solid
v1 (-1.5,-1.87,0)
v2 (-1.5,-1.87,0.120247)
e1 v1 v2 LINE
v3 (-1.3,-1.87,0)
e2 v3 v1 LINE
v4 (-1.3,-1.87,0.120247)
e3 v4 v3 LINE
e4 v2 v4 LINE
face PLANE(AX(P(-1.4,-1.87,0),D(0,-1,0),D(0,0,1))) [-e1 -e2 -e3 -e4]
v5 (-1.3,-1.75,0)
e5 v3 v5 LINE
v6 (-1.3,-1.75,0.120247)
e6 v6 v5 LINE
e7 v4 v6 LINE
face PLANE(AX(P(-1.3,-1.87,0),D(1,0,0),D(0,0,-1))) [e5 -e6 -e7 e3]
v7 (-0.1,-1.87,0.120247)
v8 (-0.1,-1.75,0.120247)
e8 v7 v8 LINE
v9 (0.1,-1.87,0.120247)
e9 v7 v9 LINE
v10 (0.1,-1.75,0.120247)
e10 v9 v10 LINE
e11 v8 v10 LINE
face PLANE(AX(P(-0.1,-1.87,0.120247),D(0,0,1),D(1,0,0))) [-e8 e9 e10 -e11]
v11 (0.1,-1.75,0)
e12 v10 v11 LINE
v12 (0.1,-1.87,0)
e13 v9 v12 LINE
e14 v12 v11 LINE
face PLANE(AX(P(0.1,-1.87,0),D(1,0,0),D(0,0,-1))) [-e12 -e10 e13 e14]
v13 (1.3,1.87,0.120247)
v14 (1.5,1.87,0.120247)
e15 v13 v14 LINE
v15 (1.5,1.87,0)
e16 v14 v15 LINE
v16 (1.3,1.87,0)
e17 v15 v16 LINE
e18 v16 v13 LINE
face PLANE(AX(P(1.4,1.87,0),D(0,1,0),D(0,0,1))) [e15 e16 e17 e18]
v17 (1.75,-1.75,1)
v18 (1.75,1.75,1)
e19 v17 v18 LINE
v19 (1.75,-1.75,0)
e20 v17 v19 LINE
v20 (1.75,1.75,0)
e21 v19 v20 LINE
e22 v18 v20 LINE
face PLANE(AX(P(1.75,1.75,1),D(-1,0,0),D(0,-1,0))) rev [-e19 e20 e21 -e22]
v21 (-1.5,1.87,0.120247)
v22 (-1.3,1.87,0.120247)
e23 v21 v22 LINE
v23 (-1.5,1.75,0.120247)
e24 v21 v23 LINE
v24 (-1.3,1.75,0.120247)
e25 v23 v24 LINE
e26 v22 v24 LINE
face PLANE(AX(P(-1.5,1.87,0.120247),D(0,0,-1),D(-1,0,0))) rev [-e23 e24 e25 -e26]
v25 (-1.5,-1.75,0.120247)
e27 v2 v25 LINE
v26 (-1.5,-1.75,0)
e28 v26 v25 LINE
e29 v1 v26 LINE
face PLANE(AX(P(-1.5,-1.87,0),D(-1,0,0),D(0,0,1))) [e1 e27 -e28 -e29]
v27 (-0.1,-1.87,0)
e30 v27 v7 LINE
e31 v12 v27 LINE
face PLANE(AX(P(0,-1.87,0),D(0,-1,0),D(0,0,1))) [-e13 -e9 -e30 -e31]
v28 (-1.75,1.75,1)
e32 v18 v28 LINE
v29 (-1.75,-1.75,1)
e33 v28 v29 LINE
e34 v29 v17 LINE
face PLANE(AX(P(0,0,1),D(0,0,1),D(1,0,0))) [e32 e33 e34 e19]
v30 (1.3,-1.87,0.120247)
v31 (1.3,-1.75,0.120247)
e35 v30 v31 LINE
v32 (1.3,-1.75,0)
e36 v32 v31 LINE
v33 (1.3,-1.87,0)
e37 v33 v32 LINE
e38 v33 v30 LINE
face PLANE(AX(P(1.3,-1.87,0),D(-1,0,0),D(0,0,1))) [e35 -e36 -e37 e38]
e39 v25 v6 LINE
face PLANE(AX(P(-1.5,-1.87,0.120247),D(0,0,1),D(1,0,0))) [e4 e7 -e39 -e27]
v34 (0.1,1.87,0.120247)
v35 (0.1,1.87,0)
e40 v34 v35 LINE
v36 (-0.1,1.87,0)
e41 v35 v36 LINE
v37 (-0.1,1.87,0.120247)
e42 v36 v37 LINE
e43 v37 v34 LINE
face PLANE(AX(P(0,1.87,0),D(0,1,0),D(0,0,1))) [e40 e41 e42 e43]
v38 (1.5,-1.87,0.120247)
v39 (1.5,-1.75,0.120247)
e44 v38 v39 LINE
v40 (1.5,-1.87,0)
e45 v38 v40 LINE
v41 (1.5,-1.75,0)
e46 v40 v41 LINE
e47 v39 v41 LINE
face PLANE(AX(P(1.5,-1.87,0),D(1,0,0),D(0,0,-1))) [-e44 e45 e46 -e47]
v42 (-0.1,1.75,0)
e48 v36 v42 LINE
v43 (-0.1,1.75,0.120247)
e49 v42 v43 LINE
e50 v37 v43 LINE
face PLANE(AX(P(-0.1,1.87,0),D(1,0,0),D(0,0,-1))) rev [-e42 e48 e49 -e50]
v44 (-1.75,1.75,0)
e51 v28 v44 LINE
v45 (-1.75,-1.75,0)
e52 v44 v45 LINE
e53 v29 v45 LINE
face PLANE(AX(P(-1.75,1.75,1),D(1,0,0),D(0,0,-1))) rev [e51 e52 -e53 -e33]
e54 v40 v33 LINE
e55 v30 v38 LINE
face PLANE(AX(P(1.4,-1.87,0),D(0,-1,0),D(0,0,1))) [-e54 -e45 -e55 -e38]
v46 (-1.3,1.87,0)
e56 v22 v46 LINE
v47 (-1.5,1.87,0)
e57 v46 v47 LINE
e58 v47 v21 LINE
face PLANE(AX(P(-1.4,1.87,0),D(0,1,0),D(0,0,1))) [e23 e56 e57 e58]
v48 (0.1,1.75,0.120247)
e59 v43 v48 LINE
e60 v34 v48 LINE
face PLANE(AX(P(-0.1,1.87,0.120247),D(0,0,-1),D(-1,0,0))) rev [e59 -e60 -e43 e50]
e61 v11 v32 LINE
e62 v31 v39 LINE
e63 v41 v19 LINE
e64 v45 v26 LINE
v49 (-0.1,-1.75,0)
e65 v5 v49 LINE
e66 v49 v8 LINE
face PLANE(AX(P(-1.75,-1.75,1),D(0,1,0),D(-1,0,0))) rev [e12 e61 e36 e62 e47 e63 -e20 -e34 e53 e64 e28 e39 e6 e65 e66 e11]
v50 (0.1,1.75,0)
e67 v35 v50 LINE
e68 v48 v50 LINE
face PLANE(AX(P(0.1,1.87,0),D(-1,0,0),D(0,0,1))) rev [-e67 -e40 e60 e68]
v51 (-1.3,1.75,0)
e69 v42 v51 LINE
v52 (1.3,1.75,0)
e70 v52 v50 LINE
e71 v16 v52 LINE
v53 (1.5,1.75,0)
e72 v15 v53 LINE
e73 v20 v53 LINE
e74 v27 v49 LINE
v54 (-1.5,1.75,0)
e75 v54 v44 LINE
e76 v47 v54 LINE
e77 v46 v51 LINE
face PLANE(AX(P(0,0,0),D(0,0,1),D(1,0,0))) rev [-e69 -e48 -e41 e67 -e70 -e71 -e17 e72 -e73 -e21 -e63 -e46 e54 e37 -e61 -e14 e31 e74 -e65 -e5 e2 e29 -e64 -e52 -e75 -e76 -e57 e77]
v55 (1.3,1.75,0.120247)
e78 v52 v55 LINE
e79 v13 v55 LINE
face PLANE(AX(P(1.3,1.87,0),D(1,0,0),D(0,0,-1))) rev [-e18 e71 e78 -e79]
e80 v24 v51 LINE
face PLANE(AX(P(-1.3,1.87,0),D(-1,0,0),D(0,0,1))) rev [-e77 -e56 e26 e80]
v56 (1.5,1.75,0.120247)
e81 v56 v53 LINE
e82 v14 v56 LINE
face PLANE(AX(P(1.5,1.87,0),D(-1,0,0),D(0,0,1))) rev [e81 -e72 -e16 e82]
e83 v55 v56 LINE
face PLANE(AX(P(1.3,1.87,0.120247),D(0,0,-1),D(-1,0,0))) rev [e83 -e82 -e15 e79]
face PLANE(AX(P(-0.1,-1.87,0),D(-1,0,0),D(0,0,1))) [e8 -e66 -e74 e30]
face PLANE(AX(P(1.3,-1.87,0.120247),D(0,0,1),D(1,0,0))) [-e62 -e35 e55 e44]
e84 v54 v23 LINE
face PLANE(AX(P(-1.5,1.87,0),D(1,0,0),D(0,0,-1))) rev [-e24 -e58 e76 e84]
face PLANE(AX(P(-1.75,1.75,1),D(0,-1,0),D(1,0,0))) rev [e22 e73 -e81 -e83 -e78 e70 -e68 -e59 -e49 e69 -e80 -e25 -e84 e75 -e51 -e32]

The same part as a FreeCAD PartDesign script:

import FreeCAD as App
import Part
import Sketcher
from FreeCAD import Vector

doc = App.newDocument("Part")
body = doc.addObject("PartDesign::Body", "Body")

# Sketch on XY plane
sketch1 = doc.addObject("Sketcher::SketchObject", "Sketch")
body.addObject(sketch1)
sketch1.AttachmentSupport = (doc.XY_Plane, [""])
sketch1.MapMode = "FlatFace"
sketch1.addGeometry(Part.LineSegment(Vector(-1.8, 1.8, 0), Vector(-1.8, -1.8, 0)), False)
sketch1.addGeometry(Part.LineSegment(Vector(-1.8, -1.8, 0), Vector(1.8, -1.8, 0)), False)
sketch1.addGeometry(Part.LineSegment(Vector(1.8, -1.8, 0), Vector(1.8, 1.8, 0)), False)
sketch1.addGeometry(Part.LineSegment(Vector(1.8, 1.8, 0), Vector(-1.8, 1.8, 0)), False)
sketch1.addConstraint(Sketcher.Constraint("Coincident", 0, 2, 1, 1))
sketch1.addConstraint(Sketcher.Constraint("Coincident", 1, 2, 2, 1))
sketch1.addConstraint(Sketcher.Constraint("Coincident", 2, 2, 3, 1))
sketch1.addConstraint(Sketcher.Constraint("Coincident", 3, 2, 0, 1))
sketch1.addConstraint(Sketcher.Constraint("Vertical", 0))
sketch1.addConstraint(Sketcher.Constraint("Horizontal", 1))
sketch1.addConstraint(Sketcher.Constraint("Vertical", 2))
sketch1.addConstraint(Sketcher.Constraint("Horizontal", 3))
sketch1.addConstraint(Sketcher.Constraint("Symmetric", 0, 2, 2, 2, -1, 1))
sketch1.addConstraint(Sketcher.Constraint("Equal", 3, 0))
sketch1.addConstraint(Sketcher.Constraint("DistanceX", 1, 1, 1, 2, 3.5))
pad1 = doc.addObject("PartDesign::Pad", "Pad")
body.addObject(pad1)
pad1.Profile = sketch1
pad1.Length = 1

# Sketch on XZ plane
sketch2 = doc.addObject("Sketcher::SketchObject", "Sketch001")
body.addObject(sketch2)
sketch2.AttachmentSupport = (doc.XZ_Plane, [""])
sketch2.MapMode = "FlatFace"
sketch2.AttachmentOffset = App.Placement(Vector(0, 0, -1.75), App.Rotation())
sketch2.addGeometry(Part.LineSegment(Vector(-0.1, 0, 0), Vector(-0.1, 0.12, 0)), False)
sketch2.addGeometry(Part.LineSegment(Vector(-0.1, 0.12, 0), Vector(0.1, 0.12, 0)), False)
sketch2.addGeometry(Part.LineSegment(Vector(0.1, 0.12, 0), Vector(0.1, 0, 0)), False)
sketch2.addGeometry(Part.LineSegment(Vector(0.1, 0, 0), Vector(-0.1, 0, 0)), False)
sketch2.addConstraint(Sketcher.Constraint("Coincident", 0, 2, 1, 1))
sketch2.addConstraint(Sketcher.Constraint("Coincident", 1, 2, 2, 1))
sketch2.addConstraint(Sketcher.Constraint("Coincident", 2, 2, 3, 1))
sketch2.addConstraint(Sketcher.Constraint("Coincident", 3, 2, 0, 1))
sketch2.addConstraint(Sketcher.Constraint("Vertical", 0))
sketch2.addConstraint(Sketcher.Constraint("Horizontal", 1))
sketch2.addConstraint(Sketcher.Constraint("Vertical", 2))
sketch2.addConstraint(Sketcher.Constraint("Horizontal", 3))
sketch2.addConstraint(Sketcher.Constraint("Symmetric", 2, 2, 3, 2, -1, 1))
sketch2.addConstraint(Sketcher.Constraint("DistanceX", 1, 1, 1, 2, 0.2))
sketch2.addConstraint(Sketcher.Constraint("DistanceY", 0, 1, 0, 2, 0.120247))
pad2 = doc.addObject("PartDesign::Pad", "Pad001")
body.addObject(pad2)
pad2.Profile = sketch2
pad2.Length = 0.12
pad2.Reversed = True
doc.recompute()

linearpattern = doc.addObject("PartDesign::LinearPattern", "LinearPattern")
body.addObject(linearpattern)
linearpattern.Originals = [pad2]
linearpattern.Direction = (doc.X_Axis, [""])
linearpattern.Mode = "offset"
linearpattern.Offset = 1.4
linearpattern.Occurrences = 2
linearpattern.Reversed = True
body.Tip = linearpattern
doc.recompute()

linearpattern2 = doc.addObject("PartDesign::LinearPattern", "LinearPattern001")
body.addObject(linearpattern2)
linearpattern2.Originals = [pad2]
linearpattern2.Direction = (doc.X_Axis, [""])
linearpattern2.Mode = "offset"
linearpattern2.Offset = 1.4
linearpattern2.Occurrences = 2
body.Tip = linearpattern2
doc.recompute()

mirrored = doc.addObject("PartDesign::Mirrored", "Mirrored")
body.addObject(mirrored)
mirrored.Originals = [pad2]
mirrored.MirrorPlane = (doc.XZ_Plane, [""])
body.Tip = mirrored

# Sketch on XZ plane
sketch3 = doc.addObject("Sketcher::SketchObject", "Sketch002")
body.addObject(sketch3)
sketch3.AttachmentSupport = (doc.XZ_Plane, [""])
sketch3.MapMode = "FlatFace"
sketch3.AttachmentOffset = App.Placement(Vector(0, 0, 1.75), App.Rotation())
sketch3.addGeometry(Part.LineSegment(Vector(1.3, 0.12, 0), Vector(1.3, 0, 0)), False)
sketch3.addGeometry(Part.LineSegment(Vector(1.3, 0, 0), Vector(1.5, 0, 0)), False)
sketch3.addGeometry(Part.LineSegment(Vector(1.5, 0, 0), Vector(1.5, 0.12, 0)), False)
sketch3.addGeometry(Part.LineSegment(Vector(1.5, 0.12, 0), Vector(1.3, 0.12, 0)), False)
sketch3.addConstraint(Sketcher.Constraint("Coincident", 0, 2, 1, 1))
sketch3.addConstraint(Sketcher.Constraint("Coincident", 1, 2, 2, 1))
sketch3.addConstraint(Sketcher.Constraint("Coincident", 2, 2, 3, 1))
sketch3.addConstraint(Sketcher.Constraint("Coincident", 3, 2, 0, 1))
sketch3.addConstraint(Sketcher.Constraint("Vertical", 0))
sketch3.addConstraint(Sketcher.Constraint("Horizontal", 1))
sketch3.addConstraint(Sketcher.Constraint("Vertical", 2))
sketch3.addConstraint(Sketcher.Constraint("Horizontal", 3))
sketch3.addConstraint(Sketcher.Constraint("PointOnObject", 0, 2, -1))
sketch3.addConstraint(Sketcher.Constraint("DistanceX", 1, 1, 1, 2, 0.2))
sketch3.addConstraint(Sketcher.Constraint("DistanceX", -1, 1, 0, 2, 1.3))
sketch3.addConstraint(Sketcher.Constraint("DistanceY", 0, 2, 0, 1, 0.120247))
pad3 = doc.addObject("PartDesign::Pad", "Pad002")
body.addObject(pad3)
pad3.Profile = sketch3
pad3.Length = 0.12

# Sketch on XZ plane
sketch4 = doc.addObject("Sketcher::SketchObject", "Sketch003")
body.addObject(sketch4)
sketch4.AttachmentSupport = (doc.XZ_Plane, [""])
sketch4.MapMode = "FlatFace"
sketch4.AttachmentOffset = App.Placement(Vector(0, 0, 1.75), App.Rotation())
sketch4.addGeometry(Part.LineSegment(Vector(-1.5, 0.12, 0), Vector(-1.5, 0, 0)), False)
sketch4.addGeometry(Part.LineSegment(Vector(-1.5, 0, 0), Vector(-1.3, 0, 0)), False)
sketch4.addGeometry(Part.LineSegment(Vector(-1.3, 0, 0), Vector(-1.3, 0.12, 0)), False)
sketch4.addGeometry(Part.LineSegment(Vector(-1.3, 0.12, 0), Vector(-1.5, 0.12, 0)), False)
sketch4.addConstraint(Sketcher.Constraint("Coincident", 0, 2, 1, 1))
sketch4.addConstraint(Sketcher.Constraint("Coincident", 1, 2, 2, 1))
sketch4.addConstraint(Sketcher.Constraint("Coincident", 2, 2, 3, 1))
sketch4.addConstraint(Sketcher.Constraint("Coincident", 3, 2, 0, 1))
sketch4.addConstraint(Sketcher.Constraint("Vertical", 0))
sketch4.addConstraint(Sketcher.Constraint("Horizontal", 1))
sketch4.addConstraint(Sketcher.Constraint("Vertical", 2))
sketch4.addConstraint(Sketcher.Constraint("Horizontal", 3))
sketch4.addConstraint(Sketcher.Constraint("PointOnObject", 0, 2, -1))
sketch4.addConstraint(Sketcher.Constraint("DistanceX", 1, 1, 1, 2, 0.2))
sketch4.addConstraint(Sketcher.Constraint("DistanceX", 0, 2, -1, 1, 1.5))
sketch4.addConstraint(Sketcher.Constraint("DistanceY", 0, 2, 0, 1, 0.120247))
pad4 = doc.addObject("PartDesign::Pad", "Pad003")
body.addObject(pad4)
pad4.Profile = sketch4
pad4.Length = 0.12

doc.recompute()
